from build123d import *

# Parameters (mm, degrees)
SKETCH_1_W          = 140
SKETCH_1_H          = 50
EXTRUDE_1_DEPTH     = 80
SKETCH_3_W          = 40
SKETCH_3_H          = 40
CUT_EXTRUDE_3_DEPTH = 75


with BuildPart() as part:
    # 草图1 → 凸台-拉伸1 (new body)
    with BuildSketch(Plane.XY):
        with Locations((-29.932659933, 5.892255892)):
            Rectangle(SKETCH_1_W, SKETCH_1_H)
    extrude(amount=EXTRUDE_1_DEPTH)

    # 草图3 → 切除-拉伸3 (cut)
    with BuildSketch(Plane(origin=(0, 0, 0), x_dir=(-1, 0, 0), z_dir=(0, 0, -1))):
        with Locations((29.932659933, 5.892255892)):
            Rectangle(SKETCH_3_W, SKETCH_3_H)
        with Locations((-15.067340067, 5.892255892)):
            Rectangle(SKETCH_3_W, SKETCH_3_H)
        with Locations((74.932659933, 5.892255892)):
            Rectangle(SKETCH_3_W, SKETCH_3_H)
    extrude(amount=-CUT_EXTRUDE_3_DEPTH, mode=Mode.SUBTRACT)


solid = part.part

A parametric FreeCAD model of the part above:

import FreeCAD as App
import Part
import Sketcher
from FreeCAD import Vector

doc = App.newDocument("Part")
body = doc.addObject("PartDesign::Body", "Body")

# Sketch on XY plane
sketch1 = body.newObject("Sketcher::SketchObject", "Sketch")
sketch1.AttachmentSupport = (doc.getObject("XY_Plane"), [""])
sketch1.MapMode = "FlatFace"
sketch1.addGeometry([
    Part.LineSegment(Vector(-100, 31, 0), Vector(-100, -19, 0)),
    Part.LineSegment(Vector(-100, -19, 0), Vector(40, -19, 0)),
    Part.LineSegment(Vector(40, -19, 0), Vector(40, 31, 0)),
    Part.LineSegment(Vector(40, 31, 0), Vector(-100, 31, 0)),
], False)
sketch1.addConstraint([
    Sketcher.Constraint("Coincident", 0, 2, 1, 1),
    Sketcher.Constraint("Coincident", 1, 2, 2, 1),
    Sketcher.Constraint("Coincident", 2, 2, 3, 1),
    Sketcher.Constraint("Coincident", 3, 2, 0, 1),
    Sketcher.Constraint("Vertical", 0),
    Sketcher.Constraint("Horizontal", 1),
    Sketcher.Constraint("Vertical", 2),
    Sketcher.Constraint("Horizontal", 3),
    Sketcher.Constraint("DistanceX", 1, 1, 1, 2, 140.0),
    Sketcher.Constraint("DistanceY", 0, 2, 0, 1, 50.0),
    Sketcher.Constraint("DistanceX", 0, 2, -1, 1, 99.93266),
    Sketcher.Constraint("DistanceY", 0, 2, -1, 1, 19.107744),
])
pad1 = body.newObject("PartDesign::Pad", "Pad")
pad1.Profile = sketch1
pad1.Length = 80

# Sketch on XY plane
sketch2 = body.newObject("Sketcher::SketchObject", "Sketch001")
sketch2.AttachmentSupport = (doc.getObject("XY_Plane"), [""])
sketch2.MapMode = "FlatFace"
sketch2.addGeometry([
    Part.LineSegment(Vector(-10, 26, 0), Vector(-10, -14, 0)),  # 0
    Part.LineSegment(Vector(-10, -14, 0), Vector(-50, -14, 0)),  # 1
    Part.LineSegment(Vector(-50, -14, 0), Vector(-50, 26, 0)),  # 2
    Part.LineSegment(Vector(-50, 26, 0), Vector(-10, 26, 0)),  # 3
    Part.LineSegment(Vector(35, 26, 0), Vector(35, -14, 0)),  # 4
    Part.LineSegment(Vector(35, -14, 0), Vector(-5, -14, 0)),  # 5
    Part.LineSegment(Vector(-5, -14, 0), Vector(-5, 26, 0)),  # 6
    Part.LineSegment(Vector(-5, 26, 0), Vector(35, 26, 0)),  # 7
    Part.LineSegment(Vector(-55, 26, 0), Vector(-55, -14, 0)),  # 8
    Part.LineSegment(Vector(-55, -14, 0), Vector(-95, -14, 0)),  # 9
    Part.LineSegment(Vector(-95, -14, 0), Vector(-95, 26, 0)),  # 10
    Part.LineSegment(Vector(-95, 26, 0), Vector(-55, 26, 0)),  # 11
], False)
sketch2.addConstraint([
    Sketcher.Constraint("Coincident", 0, 2, 1, 1),
    Sketcher.Constraint("Coincident", 1, 2, 2, 1),
    Sketcher.Constraint("Coincident", 2, 2, 3, 1),
    Sketcher.Constraint("Coincident", 3, 2, 0, 1),
    Sketcher.Constraint("Coincident", 4, 2, 5, 1),
    Sketcher.Constraint("Coincident", 5, 2, 6, 1),
    Sketcher.Constraint("Coincident", 6, 2, 7, 1),
    Sketcher.Constraint("Coincident", 7, 2, 4, 1),
    Sketcher.Constraint("Coincident", 8, 2, 9, 1),
    Sketcher.Constraint("Coincident", 9, 2, 10, 1),
    Sketcher.Constraint("Coincident", 10, 2, 11, 1),
    Sketcher.Constraint("Coincident", 11, 2, 8, 1),
    Sketcher.Constraint("Vertical", 0),
    Sketcher.Constraint("Horizontal", 1),
    Sketcher.Constraint("Vertical", 2),
    Sketcher.Constraint("Horizontal", 3),
    Sketcher.Constraint("Vertical", 4),
    Sketcher.Constraint("Horizontal", 5),
    Sketcher.Constraint("Vertical", 6),
    Sketcher.Constraint("Horizontal", 7),
    Sketcher.Constraint("Vertical", 8),
    Sketcher.Constraint("Horizontal", 9),
    Sketcher.Constraint("Vertical", 10),
    Sketcher.Constraint("Horizontal", 11),
    Sketcher.Constraint("Horizontal", 1, 2, 4, 2),
    Sketcher.Constraint("Horizontal", 3, 2, 6, 2),
    Sketcher.Constraint("Horizontal", 5, 2, 8, 2),
    Sketcher.Constraint("Horizontal", 7, 2, 10, 2),
    Sketcher.Constraint("Equal", 3, 5),
    Sketcher.Constraint("Equal", 7, 9),
    Sketcher.Constraint("Equal", 11, 0),
    Sketcher.Constraint("DistanceX", 1, 2, 1, 1, 40.0),
    Sketcher.Constraint("DistanceX", 0, 2, 4, 2, 45.0),
    Sketcher.Constraint("DistanceX", 8, 2, 1, 2, 5.0),
    Sketcher.Constraint("DistanceX", 0, 2, -1, 1, 9.93266),
    Sketcher.Constraint("DistanceY", 0, 2, -1, 1, 14.107744),
])
pocket1 = body.newObject("PartDesign::Pocket", "Pocket")
pocket1.Profile = sketch2
pocket1.Length = 75
pocket1.Reversed = True

doc.recompute()
